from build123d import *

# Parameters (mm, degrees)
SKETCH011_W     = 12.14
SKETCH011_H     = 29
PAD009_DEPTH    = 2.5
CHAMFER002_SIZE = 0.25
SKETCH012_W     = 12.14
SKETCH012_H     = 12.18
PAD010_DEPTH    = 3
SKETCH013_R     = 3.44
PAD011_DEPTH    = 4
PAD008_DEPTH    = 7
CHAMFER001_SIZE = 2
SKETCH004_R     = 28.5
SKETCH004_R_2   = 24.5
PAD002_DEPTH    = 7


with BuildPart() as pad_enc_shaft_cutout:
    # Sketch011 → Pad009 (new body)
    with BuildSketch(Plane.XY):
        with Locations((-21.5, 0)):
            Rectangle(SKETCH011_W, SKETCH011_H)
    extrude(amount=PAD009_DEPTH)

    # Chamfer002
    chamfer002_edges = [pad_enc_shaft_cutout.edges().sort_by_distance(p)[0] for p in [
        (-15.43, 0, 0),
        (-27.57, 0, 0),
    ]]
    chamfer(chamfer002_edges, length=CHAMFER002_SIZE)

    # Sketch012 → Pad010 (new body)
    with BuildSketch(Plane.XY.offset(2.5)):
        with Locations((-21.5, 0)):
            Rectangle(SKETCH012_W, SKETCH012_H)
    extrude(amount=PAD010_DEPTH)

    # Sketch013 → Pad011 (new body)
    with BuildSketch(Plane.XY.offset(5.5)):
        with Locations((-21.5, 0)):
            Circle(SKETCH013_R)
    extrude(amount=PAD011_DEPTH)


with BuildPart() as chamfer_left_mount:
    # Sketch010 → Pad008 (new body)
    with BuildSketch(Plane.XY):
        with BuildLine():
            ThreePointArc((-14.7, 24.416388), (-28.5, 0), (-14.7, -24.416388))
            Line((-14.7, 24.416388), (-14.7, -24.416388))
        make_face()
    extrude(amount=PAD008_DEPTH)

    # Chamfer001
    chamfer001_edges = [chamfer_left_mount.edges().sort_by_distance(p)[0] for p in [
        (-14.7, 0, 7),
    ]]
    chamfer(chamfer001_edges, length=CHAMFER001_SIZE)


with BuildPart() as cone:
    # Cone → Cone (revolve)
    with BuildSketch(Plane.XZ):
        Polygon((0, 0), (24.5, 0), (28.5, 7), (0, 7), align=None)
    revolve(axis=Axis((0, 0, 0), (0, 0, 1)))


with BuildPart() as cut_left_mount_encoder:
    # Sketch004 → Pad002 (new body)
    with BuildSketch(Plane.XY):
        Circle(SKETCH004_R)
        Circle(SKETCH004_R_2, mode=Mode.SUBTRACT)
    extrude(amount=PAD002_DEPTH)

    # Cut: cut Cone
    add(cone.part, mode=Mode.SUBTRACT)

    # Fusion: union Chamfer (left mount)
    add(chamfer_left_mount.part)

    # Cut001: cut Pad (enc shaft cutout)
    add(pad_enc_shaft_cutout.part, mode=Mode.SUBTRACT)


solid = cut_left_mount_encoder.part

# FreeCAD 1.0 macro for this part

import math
import FreeCAD as App
import Part
import Sketcher

V = App.Vector


def edges_at(feature, points):
    """Names of the edges that pass closest to the given points."""
    edges = feature.Shape.Edges
    near = lambda p: min(range(len(edges)), key=lambda i: edges[i].distToShape(Part.Vertex(*p))[0])
    return sorted({f"Edge{near(p) + 1}" for p in points})

doc = App.newDocument("Part")
body = doc.addObject("PartDesign::Body", "Body")

# Sketch on XY plane
sketch1 = doc.addObject("Sketcher::SketchObject", "Sketch")
body.addObject(sketch1)
sketch1.AttachmentSupport = (doc.XY_Plane, [""])
sketch1.MapMode = "FlatFace"
sketch1.addGeometry(Part.LineSegment(V(-28, 14, 0), V(-28, -14, 0)), False)
sketch1.addGeometry(Part.LineSegment(V(-28, -14, 0), V(-15, -14, 0)), False)
sketch1.addGeometry(Part.LineSegment(V(-15, -14, 0), V(-15, 14, 0)), False)
sketch1.addGeometry(Part.LineSegment(V(-15, 14, 0), V(-28, 14, 0)), False)
sketch1.addConstraint(Sketcher.Constraint("Coincident", 0, 2, 1, 1))
sketch1.addConstraint(Sketcher.Constraint("Coincident", 1, 2, 2, 1))
sketch1.addConstraint(Sketcher.Constraint("Coincident", 2, 2, 3, 1))
sketch1.addConstraint(Sketcher.Constraint("Coincident", 3, 2, 0, 1))
sketch1.addConstraint(Sketcher.Constraint("Vertical", 0))
sketch1.addConstraint(Sketcher.Constraint("Horizontal", 1))
sketch1.addConstraint(Sketcher.Constraint("Vertical", 2))
sketch1.addConstraint(Sketcher.Constraint("Horizontal", 3))
sketch1.addConstraint(Sketcher.Constraint("DistanceY", 0, 2, 0, 1, 29.0))
sketch1.addConstraint(Sketcher.Constraint("DistanceX", 1, 1, 1, 2, 12.14))
sketch1.addConstraint(Sketcher.Constraint("DistanceY", 0, 2, -1, 1, 14.5))
sketch1.addConstraint(Sketcher.Constraint("DistanceX", 0, 2, -1, 1, 27.57))
pad1 = doc.addObject("PartDesign::Pad", "Pad")
body.addObject(pad1)
pad1.Profile = sketch1
pad1.Length = 2.5
doc.recompute()

chamfer = doc.addObject("PartDesign::Chamfer", "Chamfer")
body.addObject(chamfer)
chamfer.Base = (pad1, edges_at(pad1, [(-15.43, 0, 0), (-27.57, 0, 0)]))
chamfer.Size = 0.25

# Sketch on XY plane
sketch2 = doc.addObject("Sketcher::SketchObject", "Sketch001")
body.addObject(sketch2)
sketch2.AttachmentSupport = (doc.XY_Plane, [""])
sketch2.MapMode = "FlatFace"
sketch2.AttachmentOffset = App.Placement(V(0, 0, 2.5), App.Rotation())
sketch2.addGeometry(Part.LineSegment(V(-28, 6, 0), V(-28, -6, 0)), False)
sketch2.addGeometry(Part.LineSegment(V(-28, -6, 0), V(-15, -6, 0)), False)
sketch2.addGeometry(Part.LineSegment(V(-15, -6, 0), V(-15, 6, 0)), False)
sketch2.addGeometry(Part.LineSegment(V(-15, 6, 0), V(-28, 6, 0)), False)
sketch2.addConstraint(Sketcher.Constraint("Coincident", 0, 2, 1, 1))
sketch2.addConstraint(Sketcher.Constraint("Coincident", 1, 2, 2, 1))
sketch2.addConstraint(Sketcher.Constraint("Coincident", 2, 2, 3, 1))
sketch2.addConstraint(Sketcher.Constraint("Coincident", 3, 2, 0, 1))
sketch2.addConstraint(Sketcher.Constraint("Vertical", 0))
sketch2.addConstraint(Sketcher.Constraint("Horizontal", 1))
sketch2.addConstraint(Sketcher.Constraint("Vertical", 2))
sketch2.addConstraint(Sketcher.Constraint("Horizontal", 3))
sketch2.addConstraint(Sketcher.Constraint("DistanceX", 1, 1, 1, 2, 12.14))
sketch2.addConstraint(Sketcher.Constraint("DistanceY", 0, 2, 0, 1, 12.18))
sketch2.addConstraint(Sketcher.Constraint("DistanceX", 0, 2, -1, 1, 27.57))
sketch2.addConstraint(Sketcher.Constraint("DistanceY", 0, 2, -1, 1, 6.09))
pad2 = doc.addObject("PartDesign::Pad", "Pad001")
body.addObject(pad2)
pad2.Profile = sketch2
pad2.Length = 3

# Sketch on XY plane
sketch3 = doc.addObject("Sketcher::SketchObject", "Sketch002")
body.addObject(sketch3)
sketch3.AttachmentSupport = (doc.XY_Plane, [""])
sketch3.MapMode = "FlatFace"
sketch3.AttachmentOffset = App.Placement(V(0, 0, 5.5), App.Rotation())
sketch3.addGeometry(Part.Circle(V(-21.5, 0, 0), V(0, 0, 1), 3.4), False)
sketch3.addConstraint(Sketcher.Constraint("PointOnObject", 0, 3, -1))
sketch3.addConstraint(Sketcher.Constraint("Diameter", 0, 6.88))
sketch3.addConstraint(Sketcher.Constraint("DistanceX", 0, 3, -1, 1, 21.5))
pad3 = doc.addObject("PartDesign::Pad", "Pad002")
body.addObject(pad3)
pad3.Profile = sketch3
pad3.Length = 4
body2 = doc.addObject("PartDesign::Body", "Body001")

# Sketch on XY plane
sketch4 = doc.addObject("Sketcher::SketchObject", "Sketch003")
body2.addObject(sketch4)
sketch4.AttachmentSupport = (doc.getObject("XY_Plane001"), [""])
sketch4.MapMode = "FlatFace"
sketch4.addGeometry(Part.ArcOfCircle(Part.Circle(V(0, 0, 0), V(0, 0, 1), 29), math.radians(121), math.radians(239)), False)
sketch4.addGeometry(Part.LineSegment(V(-15, -24, 0), V(-15, 24, 0)), False)
sketch4.addConstraint(Sketcher.Constraint("Coincident", 0, 1, 1, 2))
sketch4.addConstraint(Sketcher.Constraint("Coincident", 1, 1, 0, 2))
sketch4.addConstraint(Sketcher.Constraint("Vertical", 1))
sketch4.addConstraint(Sketcher.Constraint("Coincident", 0, 3, -1, 1))
sketch4.addConstraint(Sketcher.Constraint("Radius", 0, 28.5))
sketch4.addConstraint(Sketcher.Constraint("DistanceX", 0, 1, -1, 1, 14.7))
pad4 = doc.addObject("PartDesign::Pad", "Pad003")
body2.addObject(pad4)
pad4.Profile = sketch4
pad4.Length = 7
doc.recompute()

chamfer2 = doc.addObject("PartDesign::Chamfer", "Chamfer001")
body2.addObject(chamfer2)
chamfer2.Base = (pad4, edges_at(pad4, [(-14.7, 0, 7)]))
chamfer2.Size = 2
body3 = doc.addObject("PartDesign::Body", "Body002")

# Sketch on XZ plane
sketch5 = doc.addObject("Sketcher::SketchObject", "Sketch004")
body3.addObject(sketch5)
sketch5.AttachmentSupport = (doc.getObject("XZ_Plane002"), [""])
sketch5.MapMode = "FlatFace"
sketch5.addGeometry(Part.LineSegment(V(0, 0, 0), V(24, 0, 0)), False)
sketch5.addGeometry(Part.LineSegment(V(24, 0, 0), V(28, 7, 0)), False)
sketch5.addGeometry(Part.LineSegment(V(28, 7, 0), V(0, 7, 0)), False)
sketch5.addGeometry(Part.LineSegment(V(0, 7, 0), V(0, 0, 0)), False)
sketch5.addConstraint(Sketcher.Constraint("Coincident", 0, 2, 1, 1))
sketch5.addConstraint(Sketcher.Constraint("Coincident", 1, 2, 2, 1))
sketch5.addConstraint(Sketcher.Constraint("Coincident", 2, 2, 3, 1))
sketch5.addConstraint(Sketcher.Constraint("Coincident", 3, 2, 0, 1))
sketch5.addConstraint(Sketcher.Constraint("Horizontal", 0))
sketch5.addConstraint(Sketcher.Constraint("Horizontal", 2))
sketch5.addConstraint(Sketcher.Constraint("Vertical", 3))
sketch5.addConstraint(Sketcher.Constraint("Coincident", 3, 2, -1, 1))
sketch5.addConstraint(Sketcher.Constraint("DistanceY", 3, 2, 3, 1, 7.0))
sketch5.addConstraint(Sketcher.Constraint("DistanceX", 0, 1, 0, 2, 24.5))
sketch5.addConstraint(Sketcher.Constraint("DistanceX", 2, 2, 2, 1, 28.5))
revolution = doc.addObject("PartDesign::Revolution", "Revolution")
body3.addObject(revolution)
revolution.Profile = sketch5
revolution.ReferenceAxis = (sketch5, ["V_Axis"])
revolution.Angle = 360
body4 = doc.addObject("PartDesign::Body", "Body003")

# Sketch on XY plane
sketch6 = doc.addObject("Sketcher::SketchObject", "Sketch005")
body4.addObject(sketch6)
sketch6.AttachmentSupport = (doc.getObject("XY_Plane003"), [""])
sketch6.MapMode = "FlatFace"
sketch6.addGeometry(Part.Circle(V(0, 0, 0), V(0, 0, 1), 28), False)
sketch6.addGeometry(Part.Circle(V(0, 0, 0), V(0, 0, 1), 24), False)
sketch6.addConstraint(Sketcher.Constraint("Coincident", 0, 3, -1, 1))
sketch6.addConstraint(Sketcher.Constraint("Coincident", 1, 3, -1, 1))
sketch6.addConstraint(Sketcher.Constraint("Diameter", 0, 57.0))
sketch6.addConstraint(Sketcher.Constraint("Diameter", 1, 49.0))
pad5 = doc.addObject("PartDesign::Pad", "Pad004")
body4.addObject(pad5)
pad5.Profile = sketch6
pad5.Length = 7
doc.recompute()

boolean = doc.addObject("PartDesign::Boolean", "Boolean")
body4.addObject(boolean)
boolean.Type = "Cut"
boolean.addObjects([body3])
doc.recompute()

boolean2 = doc.addObject("PartDesign::Boolean", "Boolean001")
body4.addObject(boolean2)
boolean2.Type = "Fuse"
boolean2.addObjects([body2])
doc.recompute()

boolean3 = doc.addObject("PartDesign::Boolean", "Boolean002")
body4.addObject(boolean3)
boolean3.Type = "Cut"
boolean3.addObjects([body])

doc.recompute()
